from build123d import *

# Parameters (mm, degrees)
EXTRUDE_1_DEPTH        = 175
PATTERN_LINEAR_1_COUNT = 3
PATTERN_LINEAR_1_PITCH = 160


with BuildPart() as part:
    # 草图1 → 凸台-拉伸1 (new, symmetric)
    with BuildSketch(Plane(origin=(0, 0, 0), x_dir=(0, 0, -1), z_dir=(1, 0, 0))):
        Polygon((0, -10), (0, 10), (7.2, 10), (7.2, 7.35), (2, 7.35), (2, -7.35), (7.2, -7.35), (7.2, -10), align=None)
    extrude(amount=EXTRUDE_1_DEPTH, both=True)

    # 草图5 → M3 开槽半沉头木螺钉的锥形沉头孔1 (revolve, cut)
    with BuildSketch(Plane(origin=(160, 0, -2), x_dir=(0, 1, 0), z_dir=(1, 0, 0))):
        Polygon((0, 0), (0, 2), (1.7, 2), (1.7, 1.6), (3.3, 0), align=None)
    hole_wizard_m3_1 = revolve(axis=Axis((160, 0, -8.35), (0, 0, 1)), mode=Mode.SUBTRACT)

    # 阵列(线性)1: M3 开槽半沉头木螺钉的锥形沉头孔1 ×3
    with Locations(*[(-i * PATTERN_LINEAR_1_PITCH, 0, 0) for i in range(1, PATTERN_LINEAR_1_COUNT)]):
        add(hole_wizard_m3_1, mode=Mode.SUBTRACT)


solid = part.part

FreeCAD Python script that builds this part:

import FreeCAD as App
import Part
import Sketcher
from FreeCAD import Vector
Q = App.Units.Quantity

doc = App.newDocument("Part")
body = doc.addObject("PartDesign::Body", "Body")

sketch1 = body.newObject("Sketcher::SketchObject", "Sketch")
sketch1.AttachmentSupport = (doc.getObject("YZ_Plane"), [""])
sketch1.MapMode = "FlatFace"
sketch1.addGeometry([
    Part.LineSegment(Vector(10, 0, 0), Vector(-10, 0, 0)),
    Part.LineSegment(Vector(-10, 0, 0), Vector(-10, -7.2, 0)),
    Part.LineSegment(Vector(-10, -7.2, 0), Vector(-7.35, -7.2, 0)),
    Part.LineSegment(Vector(-7.35, -7.2, 0), Vector(-7.35, -2, 0)),
    Part.LineSegment(Vector(-7.35, -2, 0), Vector(7.35, -2, 0)),
    Part.LineSegment(Vector(7.35, -2, 0), Vector(7.35, -7.2, 0)),
    Part.LineSegment(Vector(7.35, -7.2, 0), Vector(10, -7.2, 0)),
    Part.LineSegment(Vector(10, -7.2, 0), Vector(10, 0, 0)),
], False)
sketch1.addConstraint([
    Sketcher.Constraint("Coincident", 0, 2, 1, 1),
    Sketcher.Constraint("Coincident", 1, 2, 2, 1),
    Sketcher.Constraint("Coincident", 2, 2, 3, 1),
    Sketcher.Constraint("Coincident", 3, 2, 4, 1),
    Sketcher.Constraint("Coincident", 4, 2, 5, 1),
    Sketcher.Constraint("Coincident", 5, 2, 6, 1),
    Sketcher.Constraint("Coincident", 6, 2, 7, 1),
    Sketcher.Constraint("Coincident", 7, 2, 0, 1),
    Sketcher.Constraint("Horizontal", 0),
    Sketcher.Constraint("Vertical", 1),
    Sketcher.Constraint("Horizontal", 2),
    Sketcher.Constraint("Vertical", 3),
    Sketcher.Constraint("Horizontal", 4),
    Sketcher.Constraint("Vertical", 5),
    Sketcher.Constraint("Horizontal", 6),
    Sketcher.Constraint("Vertical", 7),
    Sketcher.Constraint("Symmetric", 0, 2, 7, 2, -1, 1),
    Sketcher.Constraint("Symmetric", 2, 2, 5, 2, -2),
    Sketcher.Constraint("DistanceX", 0, 2, 0, 1, Q("20 mm")),
    Sketcher.Constraint("DistanceX", 4, 1, 4, 2, Q("14.7 mm")),
    Sketcher.Constraint("DistanceY", 1, 2, 1, 1, Q("7.2 mm")),
    Sketcher.Constraint("DistanceY", 3, 1, 3, 2, Q("5.2 mm")),
])
pad1 = body.newObject("PartDesign::Pad", "Pad")
pad1.Profile = sketch1
pad1.Length = 350
pad1.Midplane = True

sketch2 = body.newObject("Sketcher::SketchObject", "Sketch001")
sketch2.AttachmentSupport = (doc.getObject("YZ_Plane"), [""])
sketch2.MapMode = "FlatFace"
sketch2.AttachmentOffset = App.Placement(Vector(0, 0, 160), App.Rotation())
sketch2.addGeometry([
    Part.LineSegment(Vector(0, 0, 0), Vector(0, -2, 0)),
    Part.LineSegment(Vector(0, -2, 0), Vector(3.3, -2, 0)),
    Part.LineSegment(Vector(3.3, -2, 0), Vector(1.7, -0.4, 0)),
    Part.LineSegment(Vector(1.7, -0.4, 0), Vector(1.7, 0, 0)),
    Part.LineSegment(Vector(1.7, 0, 0), Vector(0, 0, 0)),
], False)
sketch2.addConstraint([
    Sketcher.Constraint("Coincident", 0, 2, 1, 1),
    Sketcher.Constraint("Coincident", 1, 2, 2, 1),
    Sketcher.Constraint("Coincident", 2, 2, 3, 1),
    Sketcher.Constraint("Coincident", 3, 2, 4, 1),
    Sketcher.Constraint("Coincident", 4, 2, 0, 1),
    Sketcher.Constraint("Vertical", 0),
    Sketcher.Constraint("Horizontal", 1),
    Sketcher.Constraint("Vertical", 3),
    Sketcher.Constraint("Horizontal", 4),
    Sketcher.Constraint("Coincident", 4, 2, -1, 1),
    Sketcher.Constraint("DistanceY", 0, 2, 0, 1, Q("2 mm")),
    Sketcher.Constraint("Angle", 2, Q("135 deg")),
    Sketcher.Constraint("DistanceX", 1, 1, 1, 2, Q("3.3 mm")),
    Sketcher.Constraint("DistanceX", 4, 2, 4, 1, Q("1.7 mm")),
])
groove = body.newObject("PartDesign::Groove", "Groove")
groove.Profile = sketch2
groove.ReferenceAxis = (sketch2, ["V_Axis"])
groove.Angle = 360
doc.recompute()

linearpattern = body.newObject("PartDesign::LinearPattern", "LinearPattern")
linearpattern.Originals = [groove]
linearpattern.Direction = (doc.getObject("X_Axis"), [""])
linearpattern.Mode = "offset"
linearpattern.Offset = 160
linearpattern.Occurrences = 3
linearpattern.Reversed = True
body.Tip = linearpattern

doc.recompute()
